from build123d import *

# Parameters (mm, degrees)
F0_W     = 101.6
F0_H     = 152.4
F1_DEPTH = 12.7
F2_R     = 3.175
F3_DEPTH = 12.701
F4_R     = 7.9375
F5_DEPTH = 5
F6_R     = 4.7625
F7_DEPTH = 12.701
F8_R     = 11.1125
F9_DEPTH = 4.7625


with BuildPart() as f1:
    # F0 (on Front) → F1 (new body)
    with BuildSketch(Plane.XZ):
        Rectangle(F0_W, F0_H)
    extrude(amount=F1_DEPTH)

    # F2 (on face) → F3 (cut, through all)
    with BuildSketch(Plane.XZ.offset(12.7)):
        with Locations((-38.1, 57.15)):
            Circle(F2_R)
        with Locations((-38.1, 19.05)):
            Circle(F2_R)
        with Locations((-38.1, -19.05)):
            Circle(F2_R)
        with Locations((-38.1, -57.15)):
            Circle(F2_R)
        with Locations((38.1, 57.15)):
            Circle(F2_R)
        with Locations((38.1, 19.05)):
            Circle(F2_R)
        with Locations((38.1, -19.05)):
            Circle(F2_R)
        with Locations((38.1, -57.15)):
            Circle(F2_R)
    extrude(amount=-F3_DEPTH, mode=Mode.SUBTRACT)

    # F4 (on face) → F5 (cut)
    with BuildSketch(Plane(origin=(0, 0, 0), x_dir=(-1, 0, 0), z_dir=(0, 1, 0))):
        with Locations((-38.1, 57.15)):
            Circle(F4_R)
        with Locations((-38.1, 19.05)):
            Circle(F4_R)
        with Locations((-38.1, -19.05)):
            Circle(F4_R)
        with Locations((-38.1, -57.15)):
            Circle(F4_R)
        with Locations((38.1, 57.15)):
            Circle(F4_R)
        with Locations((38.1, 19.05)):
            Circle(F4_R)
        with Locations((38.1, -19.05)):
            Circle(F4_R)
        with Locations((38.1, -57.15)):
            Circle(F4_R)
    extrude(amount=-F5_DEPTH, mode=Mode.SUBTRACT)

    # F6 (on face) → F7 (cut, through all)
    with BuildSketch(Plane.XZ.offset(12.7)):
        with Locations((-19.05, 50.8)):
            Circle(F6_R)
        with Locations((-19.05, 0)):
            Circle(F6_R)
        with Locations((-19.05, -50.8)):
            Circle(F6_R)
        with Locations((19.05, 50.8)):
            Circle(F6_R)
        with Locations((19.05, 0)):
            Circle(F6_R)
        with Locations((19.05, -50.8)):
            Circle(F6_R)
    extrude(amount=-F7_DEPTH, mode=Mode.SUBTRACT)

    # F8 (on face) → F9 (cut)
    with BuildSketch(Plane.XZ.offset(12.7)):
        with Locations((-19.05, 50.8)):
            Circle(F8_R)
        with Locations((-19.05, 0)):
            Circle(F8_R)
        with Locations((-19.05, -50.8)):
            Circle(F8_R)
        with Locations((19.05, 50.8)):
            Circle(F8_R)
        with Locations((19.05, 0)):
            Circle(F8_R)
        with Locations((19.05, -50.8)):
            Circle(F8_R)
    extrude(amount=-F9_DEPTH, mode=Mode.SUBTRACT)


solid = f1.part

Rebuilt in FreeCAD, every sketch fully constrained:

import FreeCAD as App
import Part
import Sketcher

V = App.Vector
Q = App.Units.Quantity

doc = App.newDocument("Part")
body = doc.addObject("PartDesign::Body", "Body")

# Sketch on XZ plane
sketch1 = body.newObject("Sketcher::SketchObject", "Sketch")
sketch1.AttachmentSupport = (doc.getObject("XZ_Plane"), [""])
sketch1.MapMode = "FlatFace"
sketch1.addGeometry(Part.LineSegment(V(-51, 76, 0), V(-51, -76, 0)), False)
sketch1.addGeometry(Part.LineSegment(V(-51, -76, 0), V(51, -76, 0)), False)
sketch1.addGeometry(Part.LineSegment(V(51, -76, 0), V(51, 76, 0)), False)
sketch1.addGeometry(Part.LineSegment(V(51, 76, 0), V(-51, 76, 0)), False)
sketch1.addConstraint(Sketcher.Constraint("Coincident", 0, 2, 1, 1))
sketch1.addConstraint(Sketcher.Constraint("Coincident", 1, 2, 2, 1))
sketch1.addConstraint(Sketcher.Constraint("Coincident", 2, 2, 3, 1))
sketch1.addConstraint(Sketcher.Constraint("Coincident", 3, 2, 0, 1))
sketch1.addConstraint(Sketcher.Constraint("Vertical", 0))
sketch1.addConstraint(Sketcher.Constraint("Horizontal", 1))
sketch1.addConstraint(Sketcher.Constraint("Vertical", 2))
sketch1.addConstraint(Sketcher.Constraint("Horizontal", 3))
sketch1.addConstraint(Sketcher.Constraint("Symmetric", 0, 2, 2, 2, -1, 1))
sketch1.addConstraint(Sketcher.Constraint("DistanceX", 1, 1, 1, 2, Q("4 in")))
sketch1.addConstraint(Sketcher.Constraint("DistanceY", 0, 2, 0, 1, Q("6 in")))
pad1 = body.newObject("PartDesign::Pad", "Pad")
pad1.Profile = sketch1
pad1.Length = Q("0.5 in")

# Sketch on XZ plane
sketch2 = body.newObject("Sketcher::SketchObject", "Sketch001")
sketch2.AttachmentSupport = (doc.getObject("XZ_Plane"), [""])
sketch2.MapMode = "FlatFace"
sketch2.AttachmentOffset = App.Placement(V(0, 0, 0.5 * 25.4), App.Rotation())
sketch2.addGeometry(Part.Circle(V(-38.1, 57.1, 0), V(0, 0, 1), 3.2), False)
sketch2.addGeometry(Part.Circle(V(-38.1, 19.1, 0), V(0, 0, 1), 3.2), False)
sketch2.addGeometry(Part.Circle(V(-38.1, -19.1, 0), V(0, 0, 1), 3.2), False)
sketch2.addGeometry(Part.Circle(V(-38.1, -57.1, 0), V(0, 0, 1), 3.2), False)
sketch2.addGeometry(Part.Circle(V(38.1, 57.1, 0), V(0, 0, 1), 3.2), False)
sketch2.addGeometry(Part.Circle(V(38.1, 19.1, 0), V(0, 0, 1), 3.2), False)
sketch2.addGeometry(Part.Circle(V(38.1, -19.1, 0), V(0, 0, 1), 3.2), False)
sketch2.addGeometry(Part.Circle(V(38.1, -57.1, 0), V(0, 0, 1), 3.2), False)
sketch2.addConstraint(Sketcher.Constraint("Equal", 0, 1))
sketch2.addConstraint(Sketcher.Constraint("Equal", 1, 2))
sketch2.addConstraint(Sketcher.Constraint("Equal", 2, 3))
sketch2.addConstraint(Sketcher.Constraint("Equal", 3, 4))
sketch2.addConstraint(Sketcher.Constraint("Equal", 4, 5))
sketch2.addConstraint(Sketcher.Constraint("Equal", 5, 6))
sketch2.addConstraint(Sketcher.Constraint("Equal", 6, 7))
sketch2.addConstraint(Sketcher.Constraint("Symmetric", 3, 3, 4, 3, -1, 1))
sketch2.addConstraint(Sketcher.Constraint("Symmetric", 2, 3, 5, 3, -1, 1))
sketch2.addConstraint(Sketcher.Constraint("Symmetric", 1, 3, 6, 3, -1, 1))
sketch2.addConstraint(Sketcher.Constraint("Symmetric", 0, 3, 7, 3, -1, 1))
sketch2.addConstraint(Sketcher.Constraint("Symmetric", 0, 3, 4, 3, -2))
sketch2.addConstraint(Sketcher.Constraint("Symmetric", 1, 3, 5, 3, -2))
sketch2.addConstraint(Sketcher.Constraint("Vertical", 0, 3, 1, 3))
sketch2.addConstraint(Sketcher.Constraint("Diameter", 0, Q("0.25 in")))
sketch2.addConstraint(Sketcher.Constraint("DistanceY", 2, 3, 0, 3, Q("3 in")))
sketch2.addConstraint(Sketcher.Constraint("DistanceX", 0, 3, 4, 3, Q("3 in")))
sketch2.addConstraint(Sketcher.Constraint("DistanceY", 1, 3, 0, 3, Q("1.5 in")))
pocket1 = body.newObject("PartDesign::Pocket", "Pocket")
pocket1.Profile = sketch2
pocket1.Type = "ThroughAll"

# Sketch on XZ plane
sketch3 = body.newObject("Sketcher::SketchObject", "Sketch002")
sketch3.AttachmentSupport = (doc.getObject("XZ_Plane"), [""])
sketch3.MapMode = "FlatFace"
sketch3.addGeometry(Part.Circle(V(38, 57, 0), V(0, 0, 1), 8), False)
sketch3.addGeometry(Part.Circle(V(38, 19, 0), V(0, 0, 1), 8), False)
sketch3.addGeometry(Part.Circle(V(38, -19, 0), V(0, 0, 1), 8), False)
sketch3.addGeometry(Part.Circle(V(38, -57, 0), V(0, 0, 1), 8), False)
sketch3.addGeometry(Part.Circle(V(-38, 57, 0), V(0, 0, 1), 8), False)
sketch3.addGeometry(Part.Circle(V(-38, 19, 0), V(0, 0, 1), 8), False)
sketch3.addGeometry(Part.Circle(V(-38, -19, 0), V(0, 0, 1), 8), False)
sketch3.addGeometry(Part.Circle(V(-38, -57, 0), V(0, 0, 1), 8), False)
sketch3.addConstraint(Sketcher.Constraint("Equal", 0, 1))
sketch3.addConstraint(Sketcher.Constraint("Equal", 1, 2))
sketch3.addConstraint(Sketcher.Constraint("Equal", 2, 3))
sketch3.addConstraint(Sketcher.Constraint("Equal", 3, 4))
sketch3.addConstraint(Sketcher.Constraint("Equal", 4, 5))
sketch3.addConstraint(Sketcher.Constraint("Equal", 5, 6))
sketch3.addConstraint(Sketcher.Constraint("Equal", 6, 7))
sketch3.addConstraint(Sketcher.Constraint("Symmetric", 3, 3, 4, 3, -1, 1))
sketch3.addConstraint(Sketcher.Constraint("Symmetric", 2, 3, 5, 3, -1, 1))
sketch3.addConstraint(Sketcher.Constraint("Symmetric", 1, 3, 6, 3, -1, 1))
sketch3.addConstraint(Sketcher.Constraint("Symmetric", 0, 3, 7, 3, -1, 1))
sketch3.addConstraint(Sketcher.Constraint("Symmetric", 0, 3, 4, 3, -2))
sketch3.addConstraint(Sketcher.Constraint("Symmetric", 1, 3, 5, 3, -2))
sketch3.addConstraint(Sketcher.Constraint("Vertical", 0, 3, 1, 3))
sketch3.addConstraint(Sketcher.Constraint("Diameter", 0, Q("0.625 in")))
sketch3.addConstraint(Sketcher.Constraint("DistanceY", 2, 3, 0, 3, Q("3 in")))
sketch3.addConstraint(Sketcher.Constraint("DistanceX", 4, 3, 0, 3, Q("3 in")))
sketch3.addConstraint(Sketcher.Constraint("DistanceY", 1, 3, 0, 3, Q("1.5 in")))
pocket2 = body.newObject("PartDesign::Pocket", "Pocket001")
pocket2.Profile = sketch3
pocket2.Length = 5
pocket2.Reversed = True

# Sketch on XZ plane
sketch4 = body.newObject("Sketcher::SketchObject", "Sketch003")
sketch4.AttachmentSupport = (doc.getObject("XZ_Plane"), [""])
sketch4.MapMode = "FlatFace"
sketch4.AttachmentOffset = App.Placement(V(0, 0, 0.5 * 25.4), App.Rotation())
sketch4.addGeometry(Part.Circle(V(-19.1, 50.8, 0), V(0, 0, 1), 4.8), False)
sketch4.addGeometry(Part.Circle(V(-19.1, 0, 0), V(0, 0, 1), 4.8), False)
sketch4.addGeometry(Part.Circle(V(-19.1, -50.8, 0), V(0, 0, 1), 4.8), False)
sketch4.addGeometry(Part.Circle(V(19.1, 50.8, 0), V(0, 0, 1), 4.8), False)
sketch4.addGeometry(Part.Circle(V(19.1, 0, 0), V(0, 0, 1), 4.8), False)
sketch4.addGeometry(Part.Circle(V(19.1, -50.8, 0), V(0, 0, 1), 4.8), False)
sketch4.addConstraint(Sketcher.Constraint("Equal", 0, 1))
sketch4.addConstraint(Sketcher.Constraint("Equal", 1, 2))
sketch4.addConstraint(Sketcher.Constraint("Equal", 2, 3))
sketch4.addConstraint(Sketcher.Constraint("Equal", 3, 4))
sketch4.addConstraint(Sketcher.Constraint("Equal", 4, 5))
sketch4.addConstraint(Sketcher.Constraint("Symmetric", 2, 3, 3, 3, -1, 1))
sketch4.addConstraint(Sketcher.Constraint("Symmetric", 1, 3, 4, 3, -1, 1))
sketch4.addConstraint(Sketcher.Constraint("Symmetric", 0, 3, 5, 3, -1, 1))
sketch4.addConstraint(Sketcher.Constraint("Symmetric", 0, 3, 3, 3, -2))
sketch4.addConstraint(Sketcher.Constraint("PointOnObject", 1, 3, -1))
sketch4.addConstraint(Sketcher.Constraint("Vertical", 0, 3, 1, 3))
sketch4.addConstraint(Sketcher.Constraint("Diameter", 0, Q("0.375 in")))
sketch4.addConstraint(Sketcher.Constraint("DistanceY", -1, 1, 0, 3, Q("2 in")))
sketch4.addConstraint(Sketcher.Constraint("DistanceX", 0, 3, 3, 3, Q("1.5 in")))
pocket3 = body.newObject("PartDesign::Pocket", "Pocket002")
pocket3.Profile = sketch4
pocket3.Type = "ThroughAll"

# Sketch on XZ plane
sketch5 = body.newObject("Sketcher::SketchObject", "Sketch004")
sketch5.AttachmentSupport = (doc.getObject("XZ_Plane"), [""])
sketch5.MapMode = "FlatFace"
sketch5.AttachmentOffset = App.Placement(V(0, 0, 0.5 * 25.4), App.Rotation())
sketch5.addGeometry(Part.Circle(V(-19, 51, 0), V(0, 0, 1), 11), False)
sketch5.addGeometry(Part.Circle(V(-19, 0, 0), V(0, 0, 1), 11), False)
sketch5.addGeometry(Part.Circle(V(-19, -51, 0), V(0, 0, 1), 11), False)
sketch5.addGeometry(Part.Circle(V(19, 51, 0), V(0, 0, 1), 11), False)
sketch5.addGeometry(Part.Circle(V(19, 0, 0), V(0, 0, 1), 11), False)
sketch5.addGeometry(Part.Circle(V(19, -51, 0), V(0, 0, 1), 11), False)
sketch5.addConstraint(Sketcher.Constraint("Equal", 0, 1))
sketch5.addConstraint(Sketcher.Constraint("Equal", 1, 2))
sketch5.addConstraint(Sketcher.Constraint("Equal", 2, 3))
sketch5.addConstraint(Sketcher.Constraint("Equal", 3, 4))
sketch5.addConstraint(Sketcher.Constraint("Equal", 4, 5))
sketch5.addConstraint(Sketcher.Constraint("Symmetric", 2, 3, 3, 3, -1, 1))
sketch5.addConstraint(Sketcher.Constraint("Symmetric", 1, 3, 4, 3, -1, 1))
sketch5.addConstraint(Sketcher.Constraint("Symmetric", 0, 3, 5, 3, -1, 1))
sketch5.addConstraint(Sketcher.Constraint("Symmetric", 0, 3, 3, 3, -2))
sketch5.addConstraint(Sketcher.Constraint("PointOnObject", 1, 3, -1))
sketch5.addConstraint(Sketcher.Constraint("Vertical", 0, 3, 1, 3))
sketch5.addConstraint(Sketcher.Constraint("Diameter", 0, Q("0.875 in")))
sketch5.addConstraint(Sketcher.Constraint("DistanceY", -1, 1, 0, 3, Q("2 in")))
sketch5.addConstraint(Sketcher.Constraint("DistanceX", 0, 3, 3, 3, Q("1.5 in")))
pocket4 = body.newObject("PartDesign::Pocket", "Pocket003")
pocket4.Profile = sketch5
pocket4.Length = Q("0.1875 in")

doc.recompute()
